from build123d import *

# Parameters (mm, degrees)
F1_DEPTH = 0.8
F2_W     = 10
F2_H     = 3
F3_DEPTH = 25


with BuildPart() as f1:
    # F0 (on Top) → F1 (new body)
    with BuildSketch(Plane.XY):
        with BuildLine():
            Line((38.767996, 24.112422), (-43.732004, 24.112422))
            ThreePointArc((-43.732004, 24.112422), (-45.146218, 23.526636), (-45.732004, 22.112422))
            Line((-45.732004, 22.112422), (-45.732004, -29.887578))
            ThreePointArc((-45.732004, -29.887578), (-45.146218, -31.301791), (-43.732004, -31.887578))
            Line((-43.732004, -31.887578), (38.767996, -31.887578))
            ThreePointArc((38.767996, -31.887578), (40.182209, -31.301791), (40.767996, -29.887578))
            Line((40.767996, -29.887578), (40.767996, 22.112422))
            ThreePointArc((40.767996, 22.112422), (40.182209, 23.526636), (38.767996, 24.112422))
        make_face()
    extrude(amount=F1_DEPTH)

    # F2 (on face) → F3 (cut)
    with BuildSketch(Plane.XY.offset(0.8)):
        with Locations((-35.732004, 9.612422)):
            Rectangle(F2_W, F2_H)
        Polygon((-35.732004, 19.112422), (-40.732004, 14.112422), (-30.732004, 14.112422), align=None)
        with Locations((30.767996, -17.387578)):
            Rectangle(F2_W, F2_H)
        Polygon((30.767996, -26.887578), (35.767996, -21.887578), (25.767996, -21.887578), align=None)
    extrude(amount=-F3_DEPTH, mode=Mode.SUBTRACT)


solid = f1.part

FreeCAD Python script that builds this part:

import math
import FreeCAD as App
import Part
import Sketcher
from FreeCAD import Vector

doc = App.newDocument("Part")
params = doc.addObject("Spreadsheet::Sheet", "Params")
for row, (alias, value) in enumerate([
    ("sketch1_radius", "1.999999 mm"),
    ("sketch1_height", "52 mm"),
    ("sketch1_width", "82.5 mm"),
    ("pad1_length", "0.8 mm"),
    ("sketch2_width", "10 mm"),
    ("sketch2_height", "3 mm"),
    ("pocket1_length", "25 mm"),
], start=1):
    params.set(f"A{row}", alias)
    params.set(f"B{row}", "=" + value)
    params.setAlias(f"B{row}", alias)

body = doc.addObject("PartDesign::Body", "Body")

# Sketch on XY plane
sketch1 = body.newObject("Sketcher::SketchObject", "Sketch")
sketch1.AttachmentSupport = (doc.getObject("XY_Plane"), [""])
sketch1.MapMode = "FlatFace"
sketch1.addGeometry(Part.LineSegment(Vector(38.767996, 24.112422, 0), Vector(-43.732004, 24.112422, 0)), False)
sketch1.addGeometry(Part.ArcOfCircle(Part.Circle(Vector(-43.732005, 22.112423, 0), Vector(0, 0, 1), 1.999999), math.radians(89.999957), math.radians(180.000043)), False)
sketch1.addGeometry(Part.LineSegment(Vector(-45.732004, 22.112422, 0), Vector(-45.732004, -29.887578, 0)), False)
sketch1.addGeometry(Part.ArcOfCircle(Part.Circle(Vector(-43.732004, -29.887578, 0), Vector(0, 0, 1), 2), math.radians(-179.999994), math.radians(-90.000006)), False)
sketch1.addGeometry(Part.LineSegment(Vector(-43.732004, -31.887578, 0), Vector(38.767996, -31.887578, 0)), False)
sketch1.addGeometry(Part.ArcOfCircle(Part.Circle(Vector(38.767994, -29.887576, 0), Vector(0, 0, 1), 2.000002), math.radians(-89.999945), math.radians(-0.000055)), False)
sketch1.addGeometry(Part.LineSegment(Vector(40.767996, -29.887578, 0), Vector(40.767996, 22.112422, 0)), False)
sketch1.addGeometry(Part.ArcOfCircle(Part.Circle(Vector(38.767996, 22.112422, 0), Vector(0, 0, 1), 2), math.radians(0.000006), math.radians(89.999994)), False)
sketch1.addConstraint(Sketcher.Constraint("Tangent", 0, 2, 1, 1))
sketch1.addConstraint(Sketcher.Constraint("Tangent", 1, 2, 2, 1))
sketch1.addConstraint(Sketcher.Constraint("Tangent", 2, 2, 3, 1))
sketch1.addConstraint(Sketcher.Constraint("Tangent", 3, 2, 4, 1))
sketch1.addConstraint(Sketcher.Constraint("Tangent", 4, 2, 5, 1))
sketch1.addConstraint(Sketcher.Constraint("Tangent", 5, 2, 6, 1))
sketch1.addConstraint(Sketcher.Constraint("Tangent", 6, 2, 7, 1))
sketch1.addConstraint(Sketcher.Constraint("Tangent", 7, 2, 0, 1))
sketch1.addConstraint(Sketcher.Constraint("Horizontal", 0))
sketch1.addConstraint(Sketcher.Constraint("Vertical", 2))
sketch1.addConstraint(Sketcher.Constraint("Horizontal", 4))
sketch1.addConstraint(Sketcher.Constraint("Vertical", 6))
sketch1.addConstraint(Sketcher.Constraint("Equal", 1, 3))
sketch1.addConstraint(Sketcher.Constraint("Equal", 3, 5))
sketch1.addConstraint(Sketcher.Constraint("Equal", 5, 7))
sketch1.addConstraint(Sketcher.Constraint("Radius", 1, 1.999999))
sketch1.addConstraint(Sketcher.Constraint("DistanceY", 2, 2, 2, 1, 52.0))
sketch1.addConstraint(Sketcher.Constraint("DistanceX", 0, 2, 0, 1, 82.5))
sketch1.addConstraint(Sketcher.Constraint("DistanceY", -1, 1, 7, 3, 22.112422))
sketch1.addConstraint(Sketcher.Constraint("DistanceX", 1, 3, -1, 1, 43.732005))
sketch1.setExpression("Constraints[15]", "Params.sketch1_radius")
sketch1.setExpression("Constraints[16]", "Params.sketch1_height")
sketch1.setExpression("Constraints[17]", "Params.sketch1_width")
pad1 = body.newObject("PartDesign::Pad", "Pad")
pad1.Profile = sketch1
pad1.setExpression("Length", "Params.pad1_length")

# Sketch on XY plane
sketch2 = body.newObject("Sketcher::SketchObject", "Sketch001")
sketch2.AttachmentSupport = (doc.getObject("XY_Plane"), [""])
sketch2.MapMode = "FlatFace"
sketch2.AttachmentOffset = App.Placement(Vector(0, 0, 0.8), App.Rotation())
sketch2.addGeometry(Part.LineSegment(Vector(-40.732004, 11.112422, 0), Vector(-40.732004, 8.112422, 0)), False)
sketch2.addGeometry(Part.LineSegment(Vector(-40.732004, 8.112422, 0), Vector(-30.732004, 8.112422, 0)), False)
sketch2.addGeometry(Part.LineSegment(Vector(-30.732004, 8.112422, 0), Vector(-30.732004, 11.112422, 0)), False)
sketch2.addGeometry(Part.LineSegment(Vector(-30.732004, 11.112422, 0), Vector(-40.732004, 11.112422, 0)), False)
sketch2.addGeometry(Part.LineSegment(Vector(-35.732004, 19.112422, 0), Vector(-40.732004, 14.112422, 0)), False)
sketch2.addGeometry(Part.LineSegment(Vector(-40.732004, 14.112422, 0), Vector(-30.732004, 14.112422, 0)), False)
sketch2.addGeometry(Part.LineSegment(Vector(-30.732004, 14.112422, 0), Vector(-35.732004, 19.112422, 0)), False)
sketch2.addGeometry(Part.LineSegment(Vector(25.767996, -15.887578, 0), Vector(25.767996, -18.887578, 0)), False)
sketch2.addGeometry(Part.LineSegment(Vector(25.767996, -18.887578, 0), Vector(35.767996, -18.887578, 0)), False)
sketch2.addGeometry(Part.LineSegment(Vector(35.767996, -18.887578, 0), Vector(35.767996, -15.887578, 0)), False)
sketch2.addGeometry(Part.LineSegment(Vector(35.767996, -15.887578, 0), Vector(25.767996, -15.887578, 0)), False)
sketch2.addGeometry(Part.LineSegment(Vector(30.767996, -26.887578, 0), Vector(35.767996, -21.887578, 0)), False)
sketch2.addGeometry(Part.LineSegment(Vector(35.767996, -21.887578, 0), Vector(25.767996, -21.887578, 0)), False)
sketch2.addGeometry(Part.LineSegment(Vector(25.767996, -21.887578, 0), Vector(30.767996, -26.887578, 0)), False)
sketch2.addConstraint(Sketcher.Constraint("Coincident", 0, 2, 1, 1))
sketch2.addConstraint(Sketcher.Constraint("Coincident", 1, 2, 2, 1))
sketch2.addConstraint(Sketcher.Constraint("Coincident", 2, 2, 3, 1))
sketch2.addConstraint(Sketcher.Constraint("Coincident", 3, 2, 0, 1))
sketch2.addConstraint(Sketcher.Constraint("Coincident", 4, 2, 5, 1))
sketch2.addConstraint(Sketcher.Constraint("Coincident", 5, 2, 6, 1))
sketch2.addConstraint(Sketcher.Constraint("Coincident", 6, 2, 4, 1))
sketch2.addConstraint(Sketcher.Constraint("Coincident", 7, 2, 8, 1))
sketch2.addConstraint(Sketcher.Constraint("Coincident", 8, 2, 9, 1))
sketch2.addConstraint(Sketcher.Constraint("Coincident", 9, 2, 10, 1))
sketch2.addConstraint(Sketcher.Constraint("Coincident", 10, 2, 7, 1))
sketch2.addConstraint(Sketcher.Constraint("Coincident", 11, 2, 12, 1))
sketch2.addConstraint(Sketcher.Constraint("Coincident", 12, 2, 13, 1))
sketch2.addConstraint(Sketcher.Constraint("Coincident", 13, 2, 11, 1))
sketch2.addConstraint(Sketcher.Constraint("Vertical", 0))
sketch2.addConstraint(Sketcher.Constraint("Horizontal", 1))
sketch2.addConstraint(Sketcher.Constraint("Vertical", 2))
sketch2.addConstraint(Sketcher.Constraint("Horizontal", 3))
sketch2.addConstraint(Sketcher.Constraint("Horizontal", 5))
sketch2.addConstraint(Sketcher.Constraint("Vertical", 7))
sketch2.addConstraint(Sketcher.Constraint("Horizontal", 8))
sketch2.addConstraint(Sketcher.Constraint("Vertical", 9))
sketch2.addConstraint(Sketcher.Constraint("Horizontal", 10))
sketch2.addConstraint(Sketcher.Constraint("Horizontal", 12))
sketch2.addConstraint(Sketcher.Constraint("Perpendicular", 4, 6))
sketch2.addConstraint(Sketcher.Constraint("Perpendicular", 6, 11))
sketch2.addConstraint(Sketcher.Constraint("Perpendicular", 11, 13))
sketch2.addConstraint(Sketcher.Constraint("Vertical", 3, 2, 4, 2))
sketch2.addConstraint(Sketcher.Constraint("Vertical", 2, 2, 5, 2))
sketch2.addConstraint(Sketcher.Constraint("Vertical", 9, 2, 11, 2))
sketch2.addConstraint(Sketcher.Constraint("Vertical", 10, 2, 12, 2))
sketch2.addConstraint(Sketcher.Constraint("Equal", 5, 8))
sketch2.addConstraint(Sketcher.Constraint("Equal", 2, 7))
sketch2.addConstraint(Sketcher.Constraint("Equal", 4, 6))
sketch2.addConstraint(Sketcher.Constraint("DistanceX", 1, 1, 1, 2, 10.0))
sketch2.addConstraint(Sketcher.Constraint("DistanceY", 0, 2, 0, 1, 3.0))
sketch2.addConstraint(Sketcher.Constraint("DistanceY", 3, 2, 4, 2, 3.0))
sketch2.addConstraint(Sketcher.Constraint("DistanceY", 7, 2, 1, 2, 27.0))
sketch2.addConstraint(Sketcher.Constraint("DistanceY", 11, 2, 8, 2, 3.0))
sketch2.addConstraint(Sketcher.Constraint("DistanceX", 1, 2, 7, 2, 56.5))
sketch2.addConstraint(Sketcher.Constraint("DistanceY", -1, 1, 6, 2, 19.112422))
sketch2.addConstraint(Sketcher.Constraint("DistanceX", 0, 2, -1, 1, 40.732004))
sketch2.setExpression("Constraints[34]", "Params.sketch2_width")
sketch2.setExpression("Constraints[35]", "Params.sketch2_height")
pocket1 = body.newObject("PartDesign::Pocket", "Pocket")
pocket1.Profile = sketch2
pocket1.setExpression("Length", "Params.pocket1_length")

doc.recompute()
